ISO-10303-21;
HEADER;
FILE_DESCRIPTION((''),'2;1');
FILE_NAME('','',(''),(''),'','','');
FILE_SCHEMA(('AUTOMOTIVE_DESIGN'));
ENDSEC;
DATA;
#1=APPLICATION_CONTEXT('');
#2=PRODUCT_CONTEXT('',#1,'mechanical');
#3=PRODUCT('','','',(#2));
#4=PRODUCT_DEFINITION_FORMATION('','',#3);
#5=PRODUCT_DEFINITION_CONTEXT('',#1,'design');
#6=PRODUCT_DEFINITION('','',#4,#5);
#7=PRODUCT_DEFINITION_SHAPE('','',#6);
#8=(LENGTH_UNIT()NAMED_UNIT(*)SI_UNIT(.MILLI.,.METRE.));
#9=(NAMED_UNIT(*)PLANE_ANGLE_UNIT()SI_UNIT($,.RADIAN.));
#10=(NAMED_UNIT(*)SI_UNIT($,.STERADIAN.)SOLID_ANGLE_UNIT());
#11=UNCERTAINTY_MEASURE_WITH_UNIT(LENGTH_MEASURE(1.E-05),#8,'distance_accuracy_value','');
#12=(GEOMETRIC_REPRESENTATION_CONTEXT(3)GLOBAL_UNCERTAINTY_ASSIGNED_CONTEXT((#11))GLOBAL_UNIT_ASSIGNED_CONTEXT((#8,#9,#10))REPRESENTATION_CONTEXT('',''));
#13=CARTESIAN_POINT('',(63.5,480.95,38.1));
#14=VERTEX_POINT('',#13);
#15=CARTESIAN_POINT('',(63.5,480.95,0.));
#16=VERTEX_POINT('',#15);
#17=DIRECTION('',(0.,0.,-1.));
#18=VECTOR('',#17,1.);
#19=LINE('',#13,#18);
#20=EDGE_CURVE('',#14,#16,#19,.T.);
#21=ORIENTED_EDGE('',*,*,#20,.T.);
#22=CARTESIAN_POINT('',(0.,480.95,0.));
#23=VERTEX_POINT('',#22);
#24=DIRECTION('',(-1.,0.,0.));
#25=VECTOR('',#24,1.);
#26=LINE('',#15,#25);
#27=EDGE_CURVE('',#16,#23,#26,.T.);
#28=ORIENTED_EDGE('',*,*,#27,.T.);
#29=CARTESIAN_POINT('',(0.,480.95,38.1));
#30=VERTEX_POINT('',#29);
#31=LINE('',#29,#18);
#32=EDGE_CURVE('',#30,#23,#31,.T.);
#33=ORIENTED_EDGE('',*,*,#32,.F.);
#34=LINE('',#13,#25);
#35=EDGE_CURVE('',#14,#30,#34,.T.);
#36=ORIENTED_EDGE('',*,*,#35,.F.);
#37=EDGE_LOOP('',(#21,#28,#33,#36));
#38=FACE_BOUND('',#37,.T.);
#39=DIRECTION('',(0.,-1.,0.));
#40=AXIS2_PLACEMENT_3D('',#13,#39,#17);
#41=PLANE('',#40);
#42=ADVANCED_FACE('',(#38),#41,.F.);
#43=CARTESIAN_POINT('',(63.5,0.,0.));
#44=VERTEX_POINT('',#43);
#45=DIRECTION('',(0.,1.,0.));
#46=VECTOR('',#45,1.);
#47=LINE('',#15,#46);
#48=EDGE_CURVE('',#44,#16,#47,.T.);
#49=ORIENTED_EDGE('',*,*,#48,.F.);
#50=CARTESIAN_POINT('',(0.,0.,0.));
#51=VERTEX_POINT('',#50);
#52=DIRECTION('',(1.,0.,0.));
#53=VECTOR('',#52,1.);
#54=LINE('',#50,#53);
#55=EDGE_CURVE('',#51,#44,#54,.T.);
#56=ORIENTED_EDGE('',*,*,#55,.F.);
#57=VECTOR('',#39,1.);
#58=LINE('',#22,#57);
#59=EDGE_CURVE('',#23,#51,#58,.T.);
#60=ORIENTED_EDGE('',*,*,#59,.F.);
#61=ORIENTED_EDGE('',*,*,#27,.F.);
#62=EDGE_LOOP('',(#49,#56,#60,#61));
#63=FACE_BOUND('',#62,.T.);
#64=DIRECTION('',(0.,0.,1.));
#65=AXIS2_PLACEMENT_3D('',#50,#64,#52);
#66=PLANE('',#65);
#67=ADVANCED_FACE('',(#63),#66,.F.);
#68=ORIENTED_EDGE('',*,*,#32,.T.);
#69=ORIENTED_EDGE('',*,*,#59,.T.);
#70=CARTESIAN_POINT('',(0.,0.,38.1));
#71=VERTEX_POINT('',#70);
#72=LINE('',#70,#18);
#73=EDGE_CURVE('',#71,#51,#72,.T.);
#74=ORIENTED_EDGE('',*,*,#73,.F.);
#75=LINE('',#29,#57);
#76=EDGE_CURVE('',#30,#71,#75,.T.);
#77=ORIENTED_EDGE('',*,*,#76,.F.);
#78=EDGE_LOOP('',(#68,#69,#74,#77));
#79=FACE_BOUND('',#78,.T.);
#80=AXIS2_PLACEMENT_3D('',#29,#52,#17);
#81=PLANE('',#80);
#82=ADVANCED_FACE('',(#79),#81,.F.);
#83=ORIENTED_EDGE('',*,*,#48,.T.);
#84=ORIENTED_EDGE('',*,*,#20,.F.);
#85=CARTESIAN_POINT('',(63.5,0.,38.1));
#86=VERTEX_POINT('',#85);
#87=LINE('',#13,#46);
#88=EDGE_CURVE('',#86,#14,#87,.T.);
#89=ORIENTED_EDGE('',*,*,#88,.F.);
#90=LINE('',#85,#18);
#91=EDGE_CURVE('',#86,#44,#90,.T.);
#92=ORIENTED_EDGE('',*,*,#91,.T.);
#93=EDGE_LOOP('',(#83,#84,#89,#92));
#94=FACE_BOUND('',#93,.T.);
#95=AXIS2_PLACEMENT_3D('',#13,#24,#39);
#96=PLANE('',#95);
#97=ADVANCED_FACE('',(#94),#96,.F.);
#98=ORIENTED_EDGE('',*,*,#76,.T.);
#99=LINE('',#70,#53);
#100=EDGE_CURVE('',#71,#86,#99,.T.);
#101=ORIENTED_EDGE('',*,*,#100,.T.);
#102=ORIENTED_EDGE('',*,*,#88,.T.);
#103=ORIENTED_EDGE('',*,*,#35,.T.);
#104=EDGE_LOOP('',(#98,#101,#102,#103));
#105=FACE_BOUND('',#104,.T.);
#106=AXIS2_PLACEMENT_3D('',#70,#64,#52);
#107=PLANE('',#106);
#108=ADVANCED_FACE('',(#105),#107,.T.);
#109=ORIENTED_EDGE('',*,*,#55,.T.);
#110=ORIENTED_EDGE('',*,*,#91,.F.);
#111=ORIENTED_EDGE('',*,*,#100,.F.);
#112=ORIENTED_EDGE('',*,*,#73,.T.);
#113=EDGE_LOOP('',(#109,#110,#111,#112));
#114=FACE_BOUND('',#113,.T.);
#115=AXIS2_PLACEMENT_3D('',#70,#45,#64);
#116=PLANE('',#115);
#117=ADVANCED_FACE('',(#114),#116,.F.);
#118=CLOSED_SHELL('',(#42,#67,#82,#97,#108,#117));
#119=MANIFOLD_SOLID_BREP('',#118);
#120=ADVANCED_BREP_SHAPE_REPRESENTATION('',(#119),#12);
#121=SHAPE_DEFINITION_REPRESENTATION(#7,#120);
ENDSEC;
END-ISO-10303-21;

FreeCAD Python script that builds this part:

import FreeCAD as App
import Part
import Sketcher
Q = App.Units.Quantity

doc = App.newDocument("Part")
body = doc.addObject("PartDesign::Body", "Body")

sketch1 = doc.addObject("Sketcher::SketchObject", "Sketch")
body.addObject(sketch1)
sketch1.AttachmentSupport = (doc.XY_Plane, [""])
sketch1.MapMode = "FlatFace"
sketch1.addGeometry(Part.LineSegment(App.Vector(0, 481, 0), App.Vector(0, 0, 0)), False)
sketch1.addGeometry(Part.LineSegment(App.Vector(0, 0, 0), App.Vector(64, 0, 0)), False)
sketch1.addGeometry(Part.LineSegment(App.Vector(64, 0, 0), App.Vector(64, 481, 0)), False)
sketch1.addGeometry(Part.LineSegment(App.Vector(64, 481, 0), App.Vector(0, 481, 0)), False)
sketch1.addConstraint(Sketcher.Constraint("Coincident", 0, 2, 1, 1))
sketch1.addConstraint(Sketcher.Constraint("Coincident", 1, 2, 2, 1))
sketch1.addConstraint(Sketcher.Constraint("Coincident", 2, 2, 3, 1))
sketch1.addConstraint(Sketcher.Constraint("Coincident", 3, 2, 0, 1))
sketch1.addConstraint(Sketcher.Constraint("Vertical", 0))
sketch1.addConstraint(Sketcher.Constraint("Horizontal", 1))
sketch1.addConstraint(Sketcher.Constraint("Vertical", 2))
sketch1.addConstraint(Sketcher.Constraint("Horizontal", 3))
sketch1.addConstraint(Sketcher.Constraint("Coincident", 0, 2, -1, 1))
sketch1.addConstraint(Sketcher.Constraint("DistanceX", 1, 1, 1, 2, Q("2.5 in")))
sketch1.addConstraint(Sketcher.Constraint("DistanceY", 0, 2, 0, 1, 480.95))
pad1 = doc.addObject("PartDesign::Pad", "Pad")
body.addObject(pad1)
pad1.Profile = sketch1
pad1.Length = Q("1.5 in")

doc.recompute()
